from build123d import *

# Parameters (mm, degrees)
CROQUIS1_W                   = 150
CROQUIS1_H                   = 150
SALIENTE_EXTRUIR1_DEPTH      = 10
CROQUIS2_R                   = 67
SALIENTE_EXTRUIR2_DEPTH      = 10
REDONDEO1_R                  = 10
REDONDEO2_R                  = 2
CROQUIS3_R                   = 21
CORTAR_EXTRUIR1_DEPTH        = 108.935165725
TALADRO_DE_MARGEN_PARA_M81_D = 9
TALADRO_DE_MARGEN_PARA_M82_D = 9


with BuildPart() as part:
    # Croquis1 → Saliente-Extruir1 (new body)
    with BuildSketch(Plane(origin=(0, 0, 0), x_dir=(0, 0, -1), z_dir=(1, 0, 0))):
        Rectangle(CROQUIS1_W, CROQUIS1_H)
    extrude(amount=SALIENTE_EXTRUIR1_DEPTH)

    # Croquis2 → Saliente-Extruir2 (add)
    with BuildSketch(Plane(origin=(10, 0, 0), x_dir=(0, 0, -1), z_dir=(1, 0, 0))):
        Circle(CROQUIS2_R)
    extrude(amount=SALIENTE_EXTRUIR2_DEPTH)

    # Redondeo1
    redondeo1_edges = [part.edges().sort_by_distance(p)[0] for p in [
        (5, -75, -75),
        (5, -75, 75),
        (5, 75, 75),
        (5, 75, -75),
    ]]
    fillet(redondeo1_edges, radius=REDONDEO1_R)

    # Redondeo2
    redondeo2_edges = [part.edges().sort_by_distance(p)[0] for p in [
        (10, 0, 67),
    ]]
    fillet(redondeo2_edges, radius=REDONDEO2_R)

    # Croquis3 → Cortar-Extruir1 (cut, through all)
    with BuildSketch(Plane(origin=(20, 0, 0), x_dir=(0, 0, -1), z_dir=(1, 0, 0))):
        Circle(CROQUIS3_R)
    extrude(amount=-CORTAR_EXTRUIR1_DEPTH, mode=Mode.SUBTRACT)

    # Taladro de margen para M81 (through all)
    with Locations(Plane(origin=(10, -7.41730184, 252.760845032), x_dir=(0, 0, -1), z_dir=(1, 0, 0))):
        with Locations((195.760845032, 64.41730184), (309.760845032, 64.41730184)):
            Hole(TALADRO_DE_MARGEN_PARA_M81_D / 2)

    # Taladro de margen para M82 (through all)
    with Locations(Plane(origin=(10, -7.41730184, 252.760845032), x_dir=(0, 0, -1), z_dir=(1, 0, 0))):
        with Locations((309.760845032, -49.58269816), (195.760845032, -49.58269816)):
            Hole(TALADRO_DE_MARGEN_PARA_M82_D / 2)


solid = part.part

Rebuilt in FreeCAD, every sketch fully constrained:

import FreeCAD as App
import Part
import Sketcher

V = App.Vector


def edges_at(feature, points):
    """Names of the edges that pass closest to the given points."""
    edges = feature.Shape.Edges
    near = lambda p: min(range(len(edges)), key=lambda i: edges[i].distToShape(Part.Vertex(*p))[0])
    return sorted({f"Edge{near(p) + 1}" for p in points})


def add_polygon(sketch, points):
    """Adds a closed chain of lines whose ends are joined by coincident constraints."""
    first, n = sketch.GeometryCount, len(points)
    for a, b in zip(points, points[1:] + points[:1]):
        sketch.addGeometry(Part.LineSegment(App.Vector(*a, 0), App.Vector(*b, 0)), False)
    for i in range(n):
        sketch.addConstraint(Sketcher.Constraint("Coincident", first + i, 2, first + (i + 1) % n, 1))

doc = App.newDocument("Part")
body = doc.addObject("PartDesign::Body", "Body")

# Sketch on YZ plane
sketch1 = doc.addObject("Sketcher::SketchObject", "Sketch")
body.addObject(sketch1)
sketch1.AttachmentSupport = (doc.YZ_Plane, [""])
sketch1.MapMode = "FlatFace"
add_polygon(sketch1, [(75, 75), (-75, 75), (-75, -75), (75, -75)])  # lines 0-3
sketch1.addConstraint([
    Sketcher.Constraint("Horizontal", 0),
    Sketcher.Constraint("Vertical", 1),
    Sketcher.Constraint("Horizontal", 2),
    Sketcher.Constraint("Vertical", 3),
    Sketcher.Constraint("Symmetric", 0, 2, 2, 2, -1, 1),
    Sketcher.Constraint("Equal", 2, 1),
    Sketcher.Constraint("DistanceX", 0, 2, 0, 1, 150.0),
])
pad1 = doc.addObject("PartDesign::Pad", "Pad")
body.addObject(pad1)
pad1.Profile = sketch1
pad1.Length = 10

# Sketch on YZ plane
sketch2 = doc.addObject("Sketcher::SketchObject", "Sketch001")
body.addObject(sketch2)
sketch2.AttachmentSupport = (doc.YZ_Plane, [""])
sketch2.MapMode = "FlatFace"
sketch2.AttachmentOffset = App.Placement(V(0, 0, 10), App.Rotation())
sketch2.addGeometry(Part.Circle(V(0, 0, 0), V(0, 0, 1), 67), False)
sketch2.addConstraint([
    Sketcher.Constraint("Coincident", 0, 3, -1, 1),
    Sketcher.Constraint("Diameter", 0, 134.0),
])
pad2 = doc.addObject("PartDesign::Pad", "Pad001")
body.addObject(pad2)
pad2.Profile = sketch2
pad2.Length = 10
doc.recompute()

fillet = doc.addObject("PartDesign::Fillet", "Fillet")
body.addObject(fillet)
fillet.Base = (pad2, edges_at(pad2, [
    (5, -75, -75),
    (5, -75, 75),
    (5, 75, 75),
    (5, 75, -75),
]))
fillet.Radius = 10
doc.recompute()

fillet2 = doc.addObject("PartDesign::Fillet", "Fillet001")
body.addObject(fillet2)
fillet2.Base = (fillet, edges_at(fillet, [(10, 0, 67)]))
fillet2.Radius = 2

# Sketch on YZ plane
sketch3 = doc.addObject("Sketcher::SketchObject", "Sketch002")
body.addObject(sketch3)
sketch3.AttachmentSupport = (doc.YZ_Plane, [""])
sketch3.MapMode = "FlatFace"
sketch3.AttachmentOffset = App.Placement(V(0, 0, 20), App.Rotation())
sketch3.addGeometry(Part.Circle(V(0, 0, 0), V(0, 0, 1), 21), False)
sketch3.addConstraint([
    Sketcher.Constraint("Coincident", 0, 3, -1, 1),
    Sketcher.Constraint("Diameter", 0, 42.0),
])
pocket1 = doc.addObject("PartDesign::Pocket", "Pocket")
body.addObject(pocket1)
pocket1.Profile = sketch3
pocket1.Type = "ThroughAll"

# Sketch on YZ plane
sketch4 = doc.addObject("Sketcher::SketchObject", "Sketch003")
body.addObject(sketch4)
sketch4.AttachmentSupport = (doc.YZ_Plane, [""])
sketch4.MapMode = "FlatFace"
sketch4.AttachmentOffset = App.Placement(V(0, 0, 10), App.Rotation())
sketch4.addGeometry([
    Part.Circle(V(57, 57, 0), V(0, 0, 1), 4.5),
    Part.Circle(V(57, -57, 0), V(0, 0, 1), 4.5),
], False)
sketch4.addConstraint([
    Sketcher.Constraint("Equal", 0, 1),
    Sketcher.Constraint("Symmetric", 0, 3, 1, 3, -1),
    Sketcher.Constraint("Diameter", 0, 9.0),
    Sketcher.Constraint("DistanceX", -1, 1, 0, 3, 57.0),
    Sketcher.Constraint("DistanceY", -1, 1, 0, 3, 57.0),
])
doc.recompute()
hole = doc.addObject("PartDesign::Hole", "Hole")
body.addObject(hole)
hole.Profile = sketch4
hole.ThreadType = "None"
hole.Diameter = 9
hole.DepthType = "ThroughAll"

# Sketch on YZ plane
sketch5 = doc.addObject("Sketcher::SketchObject", "Sketch004")
body.addObject(sketch5)
sketch5.AttachmentSupport = (doc.YZ_Plane, [""])
sketch5.MapMode = "FlatFace"
sketch5.AttachmentOffset = App.Placement(V(0, 0, 10), App.Rotation())
sketch5.addGeometry([
    Part.Circle(V(-57, -57, 0), V(0, 0, 1), 4.5),
    Part.Circle(V(-57, 57, 0), V(0, 0, 1), 4.5),
], False)
sketch5.addConstraint([
    Sketcher.Constraint("Equal", 0, 1),
    Sketcher.Constraint("Symmetric", 0, 3, 1, 3, -1),
    Sketcher.Constraint("Diameter", 0, 9.0),
    Sketcher.Constraint("DistanceX", 0, 3, -1, 1, 57.0),
    Sketcher.Constraint("DistanceY", 0, 3, -1, 1, 57.0),
])
doc.recompute()
hole2 = doc.addObject("PartDesign::Hole", "Hole001")
body.addObject(hole2)
hole2.Profile = sketch5
hole2.ThreadType = "None"
hole2.Diameter = 9
hole2.DepthType = "ThroughAll"

doc.recompute()
